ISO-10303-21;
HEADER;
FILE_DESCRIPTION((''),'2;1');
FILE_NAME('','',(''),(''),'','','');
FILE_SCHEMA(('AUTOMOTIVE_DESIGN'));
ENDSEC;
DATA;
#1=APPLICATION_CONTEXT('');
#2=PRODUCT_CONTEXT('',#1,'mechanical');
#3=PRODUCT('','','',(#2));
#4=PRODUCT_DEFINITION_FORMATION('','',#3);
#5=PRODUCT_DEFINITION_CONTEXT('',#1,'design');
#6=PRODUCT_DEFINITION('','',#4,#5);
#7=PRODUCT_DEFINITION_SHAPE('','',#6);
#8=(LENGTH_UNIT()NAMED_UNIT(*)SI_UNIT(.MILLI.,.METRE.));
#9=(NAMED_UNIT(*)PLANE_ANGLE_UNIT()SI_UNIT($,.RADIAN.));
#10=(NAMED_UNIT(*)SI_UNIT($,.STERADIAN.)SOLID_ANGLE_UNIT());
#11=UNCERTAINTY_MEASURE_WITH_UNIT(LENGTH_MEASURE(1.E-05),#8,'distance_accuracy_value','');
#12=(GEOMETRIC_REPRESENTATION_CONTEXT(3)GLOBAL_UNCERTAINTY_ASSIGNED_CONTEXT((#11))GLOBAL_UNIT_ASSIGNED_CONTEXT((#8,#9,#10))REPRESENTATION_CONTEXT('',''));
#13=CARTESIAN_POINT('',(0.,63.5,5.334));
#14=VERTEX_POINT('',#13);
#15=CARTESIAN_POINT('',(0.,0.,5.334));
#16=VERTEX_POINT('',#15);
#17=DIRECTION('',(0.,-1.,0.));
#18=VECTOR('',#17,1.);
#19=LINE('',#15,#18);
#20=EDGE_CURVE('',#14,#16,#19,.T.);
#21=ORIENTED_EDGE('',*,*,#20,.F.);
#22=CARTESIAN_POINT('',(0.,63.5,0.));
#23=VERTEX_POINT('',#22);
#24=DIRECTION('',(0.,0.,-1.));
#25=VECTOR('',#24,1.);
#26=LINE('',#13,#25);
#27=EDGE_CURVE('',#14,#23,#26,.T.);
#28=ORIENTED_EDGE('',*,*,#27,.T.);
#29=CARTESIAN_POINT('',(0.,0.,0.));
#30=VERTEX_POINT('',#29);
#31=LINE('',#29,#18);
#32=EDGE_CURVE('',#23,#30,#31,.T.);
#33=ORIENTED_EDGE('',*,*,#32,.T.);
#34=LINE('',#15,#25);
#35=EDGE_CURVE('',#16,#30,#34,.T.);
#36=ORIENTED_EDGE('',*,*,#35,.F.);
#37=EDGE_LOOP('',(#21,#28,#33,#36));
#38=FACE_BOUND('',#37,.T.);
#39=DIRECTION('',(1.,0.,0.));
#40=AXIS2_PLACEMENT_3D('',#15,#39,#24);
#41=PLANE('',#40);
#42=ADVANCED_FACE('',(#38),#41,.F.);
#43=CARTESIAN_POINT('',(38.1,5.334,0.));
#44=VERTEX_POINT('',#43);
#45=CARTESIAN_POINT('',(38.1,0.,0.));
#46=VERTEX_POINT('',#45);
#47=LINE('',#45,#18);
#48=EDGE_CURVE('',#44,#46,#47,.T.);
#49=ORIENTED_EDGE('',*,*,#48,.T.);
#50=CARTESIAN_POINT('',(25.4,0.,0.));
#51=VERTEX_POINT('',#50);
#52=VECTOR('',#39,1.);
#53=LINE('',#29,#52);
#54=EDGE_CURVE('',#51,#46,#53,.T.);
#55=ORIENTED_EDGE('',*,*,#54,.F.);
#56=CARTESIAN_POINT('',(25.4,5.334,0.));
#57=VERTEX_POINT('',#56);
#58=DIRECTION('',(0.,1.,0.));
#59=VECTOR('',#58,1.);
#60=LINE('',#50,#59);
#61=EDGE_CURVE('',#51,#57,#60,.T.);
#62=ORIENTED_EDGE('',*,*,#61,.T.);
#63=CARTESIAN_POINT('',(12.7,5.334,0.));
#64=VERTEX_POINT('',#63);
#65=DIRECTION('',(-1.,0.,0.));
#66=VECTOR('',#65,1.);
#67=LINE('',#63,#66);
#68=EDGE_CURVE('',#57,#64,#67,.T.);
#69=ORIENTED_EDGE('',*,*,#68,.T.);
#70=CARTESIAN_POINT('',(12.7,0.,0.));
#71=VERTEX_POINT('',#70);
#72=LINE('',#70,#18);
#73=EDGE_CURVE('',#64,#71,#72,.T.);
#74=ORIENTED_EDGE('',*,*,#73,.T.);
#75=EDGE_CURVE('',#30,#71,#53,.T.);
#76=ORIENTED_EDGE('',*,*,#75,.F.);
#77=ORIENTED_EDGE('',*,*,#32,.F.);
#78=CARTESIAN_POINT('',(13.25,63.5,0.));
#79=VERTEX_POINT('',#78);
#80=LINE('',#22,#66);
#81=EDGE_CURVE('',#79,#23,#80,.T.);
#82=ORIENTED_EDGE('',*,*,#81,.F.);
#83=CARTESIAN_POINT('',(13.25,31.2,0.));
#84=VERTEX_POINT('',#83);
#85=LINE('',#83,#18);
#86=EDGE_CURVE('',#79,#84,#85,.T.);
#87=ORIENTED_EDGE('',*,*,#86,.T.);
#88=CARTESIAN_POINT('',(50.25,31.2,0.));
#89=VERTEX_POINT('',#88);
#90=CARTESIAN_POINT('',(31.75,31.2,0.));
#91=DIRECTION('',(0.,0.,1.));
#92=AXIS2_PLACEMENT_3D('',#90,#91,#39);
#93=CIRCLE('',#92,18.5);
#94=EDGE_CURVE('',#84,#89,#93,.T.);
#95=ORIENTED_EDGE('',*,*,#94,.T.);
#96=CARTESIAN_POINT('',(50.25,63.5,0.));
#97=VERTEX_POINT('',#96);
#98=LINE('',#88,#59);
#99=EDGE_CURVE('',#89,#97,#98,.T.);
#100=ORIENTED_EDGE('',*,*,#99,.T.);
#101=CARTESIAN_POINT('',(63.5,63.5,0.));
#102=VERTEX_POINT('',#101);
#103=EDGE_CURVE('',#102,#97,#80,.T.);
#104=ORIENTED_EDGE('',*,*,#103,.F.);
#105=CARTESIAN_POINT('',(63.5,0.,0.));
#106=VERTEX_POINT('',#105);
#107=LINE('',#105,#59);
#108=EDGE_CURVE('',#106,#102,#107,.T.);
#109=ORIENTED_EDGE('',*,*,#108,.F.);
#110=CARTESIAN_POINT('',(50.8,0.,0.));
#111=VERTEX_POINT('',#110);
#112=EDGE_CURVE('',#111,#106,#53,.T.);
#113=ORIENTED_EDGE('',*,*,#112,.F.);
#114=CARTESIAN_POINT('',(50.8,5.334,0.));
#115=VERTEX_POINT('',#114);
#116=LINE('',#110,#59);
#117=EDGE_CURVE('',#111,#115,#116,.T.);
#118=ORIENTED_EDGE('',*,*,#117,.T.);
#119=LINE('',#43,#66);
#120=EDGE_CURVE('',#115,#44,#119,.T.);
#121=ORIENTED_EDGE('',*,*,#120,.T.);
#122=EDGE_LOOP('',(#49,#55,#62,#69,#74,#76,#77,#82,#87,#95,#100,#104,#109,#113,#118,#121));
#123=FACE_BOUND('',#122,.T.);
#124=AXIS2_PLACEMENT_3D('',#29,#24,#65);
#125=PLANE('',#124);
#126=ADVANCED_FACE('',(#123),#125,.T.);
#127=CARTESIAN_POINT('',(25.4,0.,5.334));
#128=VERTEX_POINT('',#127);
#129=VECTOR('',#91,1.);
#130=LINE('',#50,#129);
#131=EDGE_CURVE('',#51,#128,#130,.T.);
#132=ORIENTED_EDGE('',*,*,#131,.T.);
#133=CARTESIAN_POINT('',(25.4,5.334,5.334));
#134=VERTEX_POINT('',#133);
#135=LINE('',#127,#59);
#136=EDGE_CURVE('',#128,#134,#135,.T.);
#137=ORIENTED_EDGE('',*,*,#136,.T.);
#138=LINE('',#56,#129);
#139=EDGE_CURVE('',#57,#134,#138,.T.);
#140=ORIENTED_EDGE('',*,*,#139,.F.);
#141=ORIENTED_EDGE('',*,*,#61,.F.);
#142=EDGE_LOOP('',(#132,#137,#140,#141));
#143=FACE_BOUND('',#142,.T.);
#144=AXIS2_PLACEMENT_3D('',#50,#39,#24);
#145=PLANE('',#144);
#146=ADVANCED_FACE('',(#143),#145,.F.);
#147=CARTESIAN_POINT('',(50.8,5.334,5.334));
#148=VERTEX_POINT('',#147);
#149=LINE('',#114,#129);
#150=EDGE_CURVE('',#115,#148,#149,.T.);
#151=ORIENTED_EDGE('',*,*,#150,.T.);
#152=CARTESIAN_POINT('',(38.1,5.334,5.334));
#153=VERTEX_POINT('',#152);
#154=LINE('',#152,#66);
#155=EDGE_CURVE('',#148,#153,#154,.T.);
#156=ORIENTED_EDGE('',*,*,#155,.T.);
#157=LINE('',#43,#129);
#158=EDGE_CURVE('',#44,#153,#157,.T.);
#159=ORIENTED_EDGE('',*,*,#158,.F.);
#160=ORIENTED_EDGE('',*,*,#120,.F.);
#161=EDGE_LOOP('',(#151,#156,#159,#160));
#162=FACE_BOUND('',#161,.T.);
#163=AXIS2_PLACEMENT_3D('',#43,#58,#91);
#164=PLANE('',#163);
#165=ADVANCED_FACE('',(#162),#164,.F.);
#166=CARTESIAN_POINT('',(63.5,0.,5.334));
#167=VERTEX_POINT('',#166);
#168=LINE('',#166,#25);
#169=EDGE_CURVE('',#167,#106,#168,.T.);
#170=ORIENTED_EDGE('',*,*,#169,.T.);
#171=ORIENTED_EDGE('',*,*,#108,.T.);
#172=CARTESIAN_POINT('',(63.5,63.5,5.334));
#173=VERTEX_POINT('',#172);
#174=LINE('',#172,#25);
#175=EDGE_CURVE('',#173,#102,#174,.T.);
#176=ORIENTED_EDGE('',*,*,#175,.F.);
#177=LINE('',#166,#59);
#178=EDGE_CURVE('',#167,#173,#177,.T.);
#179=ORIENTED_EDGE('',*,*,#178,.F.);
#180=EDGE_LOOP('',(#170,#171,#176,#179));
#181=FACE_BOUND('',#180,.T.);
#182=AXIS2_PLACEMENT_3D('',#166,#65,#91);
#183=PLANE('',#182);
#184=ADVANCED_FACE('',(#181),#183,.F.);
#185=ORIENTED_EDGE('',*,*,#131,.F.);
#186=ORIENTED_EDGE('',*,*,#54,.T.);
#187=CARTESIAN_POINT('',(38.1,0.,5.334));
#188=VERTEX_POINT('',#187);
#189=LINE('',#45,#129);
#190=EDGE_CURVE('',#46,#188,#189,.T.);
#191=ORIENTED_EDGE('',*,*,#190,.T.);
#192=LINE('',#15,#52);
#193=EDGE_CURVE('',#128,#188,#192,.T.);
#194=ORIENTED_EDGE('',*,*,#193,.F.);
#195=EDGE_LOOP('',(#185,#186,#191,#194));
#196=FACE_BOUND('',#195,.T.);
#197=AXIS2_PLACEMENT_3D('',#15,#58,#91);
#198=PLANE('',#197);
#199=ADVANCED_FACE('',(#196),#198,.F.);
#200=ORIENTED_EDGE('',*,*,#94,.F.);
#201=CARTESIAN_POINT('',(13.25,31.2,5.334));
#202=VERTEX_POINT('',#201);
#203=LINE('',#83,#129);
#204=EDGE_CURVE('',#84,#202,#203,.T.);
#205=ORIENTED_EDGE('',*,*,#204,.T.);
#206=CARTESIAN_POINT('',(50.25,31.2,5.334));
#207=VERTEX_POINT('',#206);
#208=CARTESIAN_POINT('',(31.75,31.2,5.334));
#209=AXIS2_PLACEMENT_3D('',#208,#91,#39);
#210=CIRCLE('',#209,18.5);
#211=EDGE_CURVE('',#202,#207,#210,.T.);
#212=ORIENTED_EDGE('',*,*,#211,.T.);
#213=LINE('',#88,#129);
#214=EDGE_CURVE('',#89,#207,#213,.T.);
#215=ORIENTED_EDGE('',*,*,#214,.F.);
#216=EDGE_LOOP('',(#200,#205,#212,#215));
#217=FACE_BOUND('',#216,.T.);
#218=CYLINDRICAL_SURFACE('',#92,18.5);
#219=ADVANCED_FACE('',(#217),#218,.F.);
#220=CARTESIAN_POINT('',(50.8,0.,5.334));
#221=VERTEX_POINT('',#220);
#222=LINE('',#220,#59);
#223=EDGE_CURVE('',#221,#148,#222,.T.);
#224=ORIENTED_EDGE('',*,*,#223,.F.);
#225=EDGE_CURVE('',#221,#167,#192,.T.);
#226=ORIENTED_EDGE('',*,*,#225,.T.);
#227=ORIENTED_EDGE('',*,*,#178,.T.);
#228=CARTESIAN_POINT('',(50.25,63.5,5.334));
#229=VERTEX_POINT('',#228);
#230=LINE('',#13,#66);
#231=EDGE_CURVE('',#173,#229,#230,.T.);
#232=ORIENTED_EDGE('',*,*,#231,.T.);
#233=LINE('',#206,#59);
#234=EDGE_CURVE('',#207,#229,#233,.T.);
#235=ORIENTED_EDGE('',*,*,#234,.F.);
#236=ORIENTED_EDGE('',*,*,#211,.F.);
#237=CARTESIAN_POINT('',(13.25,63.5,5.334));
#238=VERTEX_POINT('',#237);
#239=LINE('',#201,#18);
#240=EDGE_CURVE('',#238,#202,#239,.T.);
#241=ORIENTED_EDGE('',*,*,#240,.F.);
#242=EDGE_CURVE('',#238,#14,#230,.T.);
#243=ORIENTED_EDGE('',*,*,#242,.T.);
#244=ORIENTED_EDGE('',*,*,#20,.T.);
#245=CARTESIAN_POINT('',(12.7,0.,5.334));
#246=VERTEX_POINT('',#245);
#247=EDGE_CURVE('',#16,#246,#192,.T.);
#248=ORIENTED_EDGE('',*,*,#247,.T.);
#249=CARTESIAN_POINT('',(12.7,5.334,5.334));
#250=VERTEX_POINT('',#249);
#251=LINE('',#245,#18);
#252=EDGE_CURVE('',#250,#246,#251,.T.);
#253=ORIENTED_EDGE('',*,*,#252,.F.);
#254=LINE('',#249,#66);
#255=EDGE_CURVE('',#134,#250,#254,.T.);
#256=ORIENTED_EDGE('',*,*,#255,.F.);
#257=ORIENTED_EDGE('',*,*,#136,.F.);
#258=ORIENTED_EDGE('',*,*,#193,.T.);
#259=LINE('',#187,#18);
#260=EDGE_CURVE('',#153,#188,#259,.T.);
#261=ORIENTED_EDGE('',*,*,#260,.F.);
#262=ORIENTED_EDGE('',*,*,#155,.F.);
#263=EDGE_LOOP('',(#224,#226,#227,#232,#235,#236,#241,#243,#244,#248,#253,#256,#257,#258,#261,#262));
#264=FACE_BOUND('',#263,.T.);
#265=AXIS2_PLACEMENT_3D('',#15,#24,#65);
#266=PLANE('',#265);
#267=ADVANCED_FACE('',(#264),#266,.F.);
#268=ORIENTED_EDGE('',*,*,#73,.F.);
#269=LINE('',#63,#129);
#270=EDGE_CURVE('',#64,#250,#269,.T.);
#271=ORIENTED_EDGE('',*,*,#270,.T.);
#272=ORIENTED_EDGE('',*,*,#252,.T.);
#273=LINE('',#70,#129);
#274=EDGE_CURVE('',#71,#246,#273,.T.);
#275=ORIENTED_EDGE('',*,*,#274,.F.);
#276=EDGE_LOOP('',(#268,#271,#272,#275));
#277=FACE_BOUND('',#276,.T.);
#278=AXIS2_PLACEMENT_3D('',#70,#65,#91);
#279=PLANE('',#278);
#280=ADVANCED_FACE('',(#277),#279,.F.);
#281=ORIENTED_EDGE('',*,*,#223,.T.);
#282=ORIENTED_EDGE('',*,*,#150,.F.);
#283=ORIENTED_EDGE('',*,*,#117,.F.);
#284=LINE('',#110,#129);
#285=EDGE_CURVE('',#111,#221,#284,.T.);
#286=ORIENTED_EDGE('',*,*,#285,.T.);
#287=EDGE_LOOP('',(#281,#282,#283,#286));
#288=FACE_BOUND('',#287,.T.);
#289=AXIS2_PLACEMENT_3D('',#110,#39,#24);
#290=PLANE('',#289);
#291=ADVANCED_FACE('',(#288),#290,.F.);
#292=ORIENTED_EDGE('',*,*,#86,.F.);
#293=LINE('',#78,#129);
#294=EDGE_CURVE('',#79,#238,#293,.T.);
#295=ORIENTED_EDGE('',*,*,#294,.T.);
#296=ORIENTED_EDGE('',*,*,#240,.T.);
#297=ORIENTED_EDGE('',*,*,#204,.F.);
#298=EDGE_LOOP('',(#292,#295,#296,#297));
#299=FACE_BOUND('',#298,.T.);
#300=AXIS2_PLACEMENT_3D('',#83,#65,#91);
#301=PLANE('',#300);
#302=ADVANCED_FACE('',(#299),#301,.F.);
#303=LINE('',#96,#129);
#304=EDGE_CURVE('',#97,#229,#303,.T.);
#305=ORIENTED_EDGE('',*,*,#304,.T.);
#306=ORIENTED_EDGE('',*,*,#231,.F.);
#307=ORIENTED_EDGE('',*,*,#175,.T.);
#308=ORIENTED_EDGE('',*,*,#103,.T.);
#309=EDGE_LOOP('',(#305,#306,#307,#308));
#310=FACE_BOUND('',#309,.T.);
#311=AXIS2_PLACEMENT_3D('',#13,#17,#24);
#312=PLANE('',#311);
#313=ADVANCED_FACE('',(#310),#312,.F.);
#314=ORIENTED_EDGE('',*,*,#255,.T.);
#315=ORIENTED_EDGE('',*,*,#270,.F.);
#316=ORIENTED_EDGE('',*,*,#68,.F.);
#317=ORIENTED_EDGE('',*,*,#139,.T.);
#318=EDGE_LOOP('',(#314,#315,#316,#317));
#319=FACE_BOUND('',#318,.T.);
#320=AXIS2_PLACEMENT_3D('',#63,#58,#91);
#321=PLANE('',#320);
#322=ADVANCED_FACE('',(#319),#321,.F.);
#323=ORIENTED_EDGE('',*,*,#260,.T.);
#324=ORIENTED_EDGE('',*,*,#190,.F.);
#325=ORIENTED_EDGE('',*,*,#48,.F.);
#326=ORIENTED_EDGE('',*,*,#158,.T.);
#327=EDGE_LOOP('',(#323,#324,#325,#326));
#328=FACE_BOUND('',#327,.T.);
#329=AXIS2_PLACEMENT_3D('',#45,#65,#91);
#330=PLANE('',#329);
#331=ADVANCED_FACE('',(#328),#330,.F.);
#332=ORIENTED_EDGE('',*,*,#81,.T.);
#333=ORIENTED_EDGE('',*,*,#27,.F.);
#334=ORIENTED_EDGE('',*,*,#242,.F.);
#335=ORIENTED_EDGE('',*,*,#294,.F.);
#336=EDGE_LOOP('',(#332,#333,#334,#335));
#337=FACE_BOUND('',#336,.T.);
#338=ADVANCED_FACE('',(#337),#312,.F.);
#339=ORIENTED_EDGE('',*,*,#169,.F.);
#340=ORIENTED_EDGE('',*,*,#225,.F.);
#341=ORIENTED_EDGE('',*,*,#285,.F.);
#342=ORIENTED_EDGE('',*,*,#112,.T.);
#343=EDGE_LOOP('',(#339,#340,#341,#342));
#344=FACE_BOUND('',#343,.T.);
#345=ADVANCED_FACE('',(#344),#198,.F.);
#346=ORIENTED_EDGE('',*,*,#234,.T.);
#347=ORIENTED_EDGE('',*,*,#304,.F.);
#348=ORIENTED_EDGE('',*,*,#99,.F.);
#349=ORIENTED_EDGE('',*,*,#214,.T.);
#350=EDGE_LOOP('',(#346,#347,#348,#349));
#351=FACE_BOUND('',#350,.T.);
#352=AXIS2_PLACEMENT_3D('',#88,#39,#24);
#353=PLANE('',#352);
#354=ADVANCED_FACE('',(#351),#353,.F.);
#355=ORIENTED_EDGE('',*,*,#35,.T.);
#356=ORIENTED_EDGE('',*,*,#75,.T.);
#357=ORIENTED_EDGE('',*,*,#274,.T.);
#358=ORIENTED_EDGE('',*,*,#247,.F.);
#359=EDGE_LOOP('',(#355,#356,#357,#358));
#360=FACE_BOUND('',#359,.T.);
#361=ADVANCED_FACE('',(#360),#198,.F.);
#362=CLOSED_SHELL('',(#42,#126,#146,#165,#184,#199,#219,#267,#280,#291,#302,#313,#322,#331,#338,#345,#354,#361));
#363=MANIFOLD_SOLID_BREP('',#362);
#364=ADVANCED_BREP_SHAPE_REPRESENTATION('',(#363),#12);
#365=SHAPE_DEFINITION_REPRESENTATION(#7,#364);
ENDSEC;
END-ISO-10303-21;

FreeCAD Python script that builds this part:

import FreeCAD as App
import Part
import Sketcher

V = App.Vector
Q = App.Units.Quantity

doc = App.newDocument("Part")
body = doc.addObject("PartDesign::Body", "Body")

# Sketch on XY plane
sketch1 = body.newObject("Sketcher::SketchObject", "Sketch")
sketch1.AttachmentSupport = (doc.getObject("XY_Plane"), [""])
sketch1.MapMode = "FlatFace"
sketch1.addGeometry(Part.LineSegment(V(0, 64, 0), V(0, 0, 0)), False)
sketch1.addGeometry(Part.LineSegment(V(0, 0, 0), V(64, 0, 0)), False)
sketch1.addGeometry(Part.LineSegment(V(64, 0, 0), V(64, 64, 0)), False)
sketch1.addGeometry(Part.LineSegment(V(64, 64, 0), V(0, 64, 0)), False)
sketch1.addConstraint(Sketcher.Constraint("Coincident", 0, 2, 1, 1))
sketch1.addConstraint(Sketcher.Constraint("Coincident", 1, 2, 2, 1))
sketch1.addConstraint(Sketcher.Constraint("Coincident", 2, 2, 3, 1))
sketch1.addConstraint(Sketcher.Constraint("Coincident", 3, 2, 0, 1))
sketch1.addConstraint(Sketcher.Constraint("Vertical", 0))
sketch1.addConstraint(Sketcher.Constraint("Horizontal", 1))
sketch1.addConstraint(Sketcher.Constraint("Vertical", 2))
sketch1.addConstraint(Sketcher.Constraint("Horizontal", 3))
sketch1.addConstraint(Sketcher.Constraint("Coincident", 0, 2, -1, 1))
sketch1.addConstraint(Sketcher.Constraint("Equal", 3, 0))
sketch1.addConstraint(Sketcher.Constraint("DistanceX", 1, 1, 1, 2, Q("2.5 in")))
pad1 = body.newObject("PartDesign::Pad", "Pad")
pad1.Profile = sketch1
pad1.Length = Q("0.21 in")

# Sketch on XY plane
sketch2 = body.newObject("Sketcher::SketchObject", "Sketch001")
sketch2.AttachmentSupport = (doc.getObject("XY_Plane"), [""])
sketch2.MapMode = "FlatFace"
sketch2.AttachmentOffset = App.Placement(V(0, 0, 0.21 * 25.4), App.Rotation())
sketch2.addGeometry(Part.Circle(V(32, 31, 0), V(0, 0, 1), 18), False)
sketch2.addGeometry(Part.LineSegment(V(13, 5, 0), V(13, 0, 0)), False)
sketch2.addGeometry(Part.LineSegment(V(13, 0, 0), V(25, 0, 0)), False)
sketch2.addGeometry(Part.LineSegment(V(25, 0, 0), V(25, 5, 0)), False)
sketch2.addGeometry(Part.LineSegment(V(25, 5, 0), V(13, 5, 0)), False)
sketch2.addGeometry(Part.LineSegment(V(38, 5, 0), V(38, 0, 0)), False)
sketch2.addGeometry(Part.LineSegment(V(38, 0, 0), V(51, 0, 0)), False)
sketch2.addGeometry(Part.LineSegment(V(51, 0, 0), V(51, 5, 0)), False)
sketch2.addGeometry(Part.LineSegment(V(51, 5, 0), V(38, 5, 0)), False)
sketch2.addConstraint(Sketcher.Constraint("Coincident", 1, 2, 2, 1))
sketch2.addConstraint(Sketcher.Constraint("Coincident", 2, 2, 3, 1))
sketch2.addConstraint(Sketcher.Constraint("Coincident", 3, 2, 4, 1))
sketch2.addConstraint(Sketcher.Constraint("Coincident", 4, 2, 1, 1))
sketch2.addConstraint(Sketcher.Constraint("Coincident", 5, 2, 6, 1))
sketch2.addConstraint(Sketcher.Constraint("Coincident", 6, 2, 7, 1))
sketch2.addConstraint(Sketcher.Constraint("Coincident", 7, 2, 8, 1))
sketch2.addConstraint(Sketcher.Constraint("Coincident", 8, 2, 5, 1))
sketch2.addConstraint(Sketcher.Constraint("Vertical", 1))
sketch2.addConstraint(Sketcher.Constraint("Horizontal", 2))
sketch2.addConstraint(Sketcher.Constraint("Vertical", 3))
sketch2.addConstraint(Sketcher.Constraint("Horizontal", 4))
sketch2.addConstraint(Sketcher.Constraint("Vertical", 5))
sketch2.addConstraint(Sketcher.Constraint("Horizontal", 6))
sketch2.addConstraint(Sketcher.Constraint("Vertical", 7))
sketch2.addConstraint(Sketcher.Constraint("Horizontal", 8))
sketch2.addConstraint(Sketcher.Constraint("PointOnObject", 1, 2, -1))
sketch2.addConstraint(Sketcher.Constraint("PointOnObject", 5, 2, -1))
sketch2.addConstraint(Sketcher.Constraint("Horizontal", 4, 2, 7, 2))
sketch2.addConstraint(Sketcher.Constraint("Equal", 4, 6))
sketch2.addConstraint(Sketcher.Constraint("DistanceX", 2, 1, 2, 2, Q("0.5 in")))
sketch2.addConstraint(Sketcher.Constraint("DistanceX", -1, 1, 2, 2, Q("1 in")))
sketch2.addConstraint(Sketcher.Constraint("DistanceX", -1, 1, 6, 2, Q("2 in")))
sketch2.addConstraint(Sketcher.Constraint("DistanceY", 1, 2, 1, 1, Q("0.21 in")))
sketch2.addConstraint(Sketcher.Constraint("Diameter", 0, 37.0))
sketch2.addConstraint(Sketcher.Constraint("DistanceX", -1, 1, 0, 3, Q("1.25 in")))
sketch2.addConstraint(Sketcher.Constraint("DistanceY", -1, 1, 0, 3, 31.2))
pocket1 = body.newObject("PartDesign::Pocket", "Pocket")
pocket1.Profile = sketch2
pocket1.Length = Q("0.21 in")

# Sketch on XY plane
sketch3 = body.newObject("Sketcher::SketchObject", "Sketch002")
sketch3.AttachmentSupport = (doc.getObject("XY_Plane"), [""])
sketch3.MapMode = "FlatFace"
sketch3.AttachmentOffset = App.Placement(V(0, 0, 0.21 * 25.4), App.Rotation())
sketch3.addGeometry(Part.LineSegment(V(13, 64, 0), V(13, 31, 0)), False)
sketch3.addGeometry(Part.LineSegment(V(13, 31, 0), V(50, 31, 0)), False)
sketch3.addGeometry(Part.LineSegment(V(50, 31, 0), V(50, 64, 0)), False)
sketch3.addGeometry(Part.LineSegment(V(50, 64, 0), V(13, 64, 0)), False)
sketch3.addConstraint(Sketcher.Constraint("Coincident", 0, 2, 1, 1))
sketch3.addConstraint(Sketcher.Constraint("Coincident", 1, 2, 2, 1))
sketch3.addConstraint(Sketcher.Constraint("Coincident", 2, 2, 3, 1))
sketch3.addConstraint(Sketcher.Constraint("Coincident", 3, 2, 0, 1))
sketch3.addConstraint(Sketcher.Constraint("Vertical", 0))
sketch3.addConstraint(Sketcher.Constraint("Horizontal", 1))
sketch3.addConstraint(Sketcher.Constraint("Vertical", 2))
sketch3.addConstraint(Sketcher.Constraint("Horizontal", 3))
sketch3.addConstraint(Sketcher.Constraint("DistanceY", -1, 1, 2, 2, Q("2.5 in")))
sketch3.addConstraint(Sketcher.Constraint("DistanceX", 1, 1, 1, 2, 37.0))
sketch3.addConstraint(Sketcher.Constraint("DistanceY", 0, 2, 0, 1, 32.3))
sketch3.addConstraint(Sketcher.Constraint("DistanceX", -1, 1, 0, 2, 13.25))
pocket2 = body.newObject("PartDesign::Pocket", "Pocket001")
pocket2.Profile = sketch3
pocket2.Length = Q("0.21 in")

doc.recompute()
